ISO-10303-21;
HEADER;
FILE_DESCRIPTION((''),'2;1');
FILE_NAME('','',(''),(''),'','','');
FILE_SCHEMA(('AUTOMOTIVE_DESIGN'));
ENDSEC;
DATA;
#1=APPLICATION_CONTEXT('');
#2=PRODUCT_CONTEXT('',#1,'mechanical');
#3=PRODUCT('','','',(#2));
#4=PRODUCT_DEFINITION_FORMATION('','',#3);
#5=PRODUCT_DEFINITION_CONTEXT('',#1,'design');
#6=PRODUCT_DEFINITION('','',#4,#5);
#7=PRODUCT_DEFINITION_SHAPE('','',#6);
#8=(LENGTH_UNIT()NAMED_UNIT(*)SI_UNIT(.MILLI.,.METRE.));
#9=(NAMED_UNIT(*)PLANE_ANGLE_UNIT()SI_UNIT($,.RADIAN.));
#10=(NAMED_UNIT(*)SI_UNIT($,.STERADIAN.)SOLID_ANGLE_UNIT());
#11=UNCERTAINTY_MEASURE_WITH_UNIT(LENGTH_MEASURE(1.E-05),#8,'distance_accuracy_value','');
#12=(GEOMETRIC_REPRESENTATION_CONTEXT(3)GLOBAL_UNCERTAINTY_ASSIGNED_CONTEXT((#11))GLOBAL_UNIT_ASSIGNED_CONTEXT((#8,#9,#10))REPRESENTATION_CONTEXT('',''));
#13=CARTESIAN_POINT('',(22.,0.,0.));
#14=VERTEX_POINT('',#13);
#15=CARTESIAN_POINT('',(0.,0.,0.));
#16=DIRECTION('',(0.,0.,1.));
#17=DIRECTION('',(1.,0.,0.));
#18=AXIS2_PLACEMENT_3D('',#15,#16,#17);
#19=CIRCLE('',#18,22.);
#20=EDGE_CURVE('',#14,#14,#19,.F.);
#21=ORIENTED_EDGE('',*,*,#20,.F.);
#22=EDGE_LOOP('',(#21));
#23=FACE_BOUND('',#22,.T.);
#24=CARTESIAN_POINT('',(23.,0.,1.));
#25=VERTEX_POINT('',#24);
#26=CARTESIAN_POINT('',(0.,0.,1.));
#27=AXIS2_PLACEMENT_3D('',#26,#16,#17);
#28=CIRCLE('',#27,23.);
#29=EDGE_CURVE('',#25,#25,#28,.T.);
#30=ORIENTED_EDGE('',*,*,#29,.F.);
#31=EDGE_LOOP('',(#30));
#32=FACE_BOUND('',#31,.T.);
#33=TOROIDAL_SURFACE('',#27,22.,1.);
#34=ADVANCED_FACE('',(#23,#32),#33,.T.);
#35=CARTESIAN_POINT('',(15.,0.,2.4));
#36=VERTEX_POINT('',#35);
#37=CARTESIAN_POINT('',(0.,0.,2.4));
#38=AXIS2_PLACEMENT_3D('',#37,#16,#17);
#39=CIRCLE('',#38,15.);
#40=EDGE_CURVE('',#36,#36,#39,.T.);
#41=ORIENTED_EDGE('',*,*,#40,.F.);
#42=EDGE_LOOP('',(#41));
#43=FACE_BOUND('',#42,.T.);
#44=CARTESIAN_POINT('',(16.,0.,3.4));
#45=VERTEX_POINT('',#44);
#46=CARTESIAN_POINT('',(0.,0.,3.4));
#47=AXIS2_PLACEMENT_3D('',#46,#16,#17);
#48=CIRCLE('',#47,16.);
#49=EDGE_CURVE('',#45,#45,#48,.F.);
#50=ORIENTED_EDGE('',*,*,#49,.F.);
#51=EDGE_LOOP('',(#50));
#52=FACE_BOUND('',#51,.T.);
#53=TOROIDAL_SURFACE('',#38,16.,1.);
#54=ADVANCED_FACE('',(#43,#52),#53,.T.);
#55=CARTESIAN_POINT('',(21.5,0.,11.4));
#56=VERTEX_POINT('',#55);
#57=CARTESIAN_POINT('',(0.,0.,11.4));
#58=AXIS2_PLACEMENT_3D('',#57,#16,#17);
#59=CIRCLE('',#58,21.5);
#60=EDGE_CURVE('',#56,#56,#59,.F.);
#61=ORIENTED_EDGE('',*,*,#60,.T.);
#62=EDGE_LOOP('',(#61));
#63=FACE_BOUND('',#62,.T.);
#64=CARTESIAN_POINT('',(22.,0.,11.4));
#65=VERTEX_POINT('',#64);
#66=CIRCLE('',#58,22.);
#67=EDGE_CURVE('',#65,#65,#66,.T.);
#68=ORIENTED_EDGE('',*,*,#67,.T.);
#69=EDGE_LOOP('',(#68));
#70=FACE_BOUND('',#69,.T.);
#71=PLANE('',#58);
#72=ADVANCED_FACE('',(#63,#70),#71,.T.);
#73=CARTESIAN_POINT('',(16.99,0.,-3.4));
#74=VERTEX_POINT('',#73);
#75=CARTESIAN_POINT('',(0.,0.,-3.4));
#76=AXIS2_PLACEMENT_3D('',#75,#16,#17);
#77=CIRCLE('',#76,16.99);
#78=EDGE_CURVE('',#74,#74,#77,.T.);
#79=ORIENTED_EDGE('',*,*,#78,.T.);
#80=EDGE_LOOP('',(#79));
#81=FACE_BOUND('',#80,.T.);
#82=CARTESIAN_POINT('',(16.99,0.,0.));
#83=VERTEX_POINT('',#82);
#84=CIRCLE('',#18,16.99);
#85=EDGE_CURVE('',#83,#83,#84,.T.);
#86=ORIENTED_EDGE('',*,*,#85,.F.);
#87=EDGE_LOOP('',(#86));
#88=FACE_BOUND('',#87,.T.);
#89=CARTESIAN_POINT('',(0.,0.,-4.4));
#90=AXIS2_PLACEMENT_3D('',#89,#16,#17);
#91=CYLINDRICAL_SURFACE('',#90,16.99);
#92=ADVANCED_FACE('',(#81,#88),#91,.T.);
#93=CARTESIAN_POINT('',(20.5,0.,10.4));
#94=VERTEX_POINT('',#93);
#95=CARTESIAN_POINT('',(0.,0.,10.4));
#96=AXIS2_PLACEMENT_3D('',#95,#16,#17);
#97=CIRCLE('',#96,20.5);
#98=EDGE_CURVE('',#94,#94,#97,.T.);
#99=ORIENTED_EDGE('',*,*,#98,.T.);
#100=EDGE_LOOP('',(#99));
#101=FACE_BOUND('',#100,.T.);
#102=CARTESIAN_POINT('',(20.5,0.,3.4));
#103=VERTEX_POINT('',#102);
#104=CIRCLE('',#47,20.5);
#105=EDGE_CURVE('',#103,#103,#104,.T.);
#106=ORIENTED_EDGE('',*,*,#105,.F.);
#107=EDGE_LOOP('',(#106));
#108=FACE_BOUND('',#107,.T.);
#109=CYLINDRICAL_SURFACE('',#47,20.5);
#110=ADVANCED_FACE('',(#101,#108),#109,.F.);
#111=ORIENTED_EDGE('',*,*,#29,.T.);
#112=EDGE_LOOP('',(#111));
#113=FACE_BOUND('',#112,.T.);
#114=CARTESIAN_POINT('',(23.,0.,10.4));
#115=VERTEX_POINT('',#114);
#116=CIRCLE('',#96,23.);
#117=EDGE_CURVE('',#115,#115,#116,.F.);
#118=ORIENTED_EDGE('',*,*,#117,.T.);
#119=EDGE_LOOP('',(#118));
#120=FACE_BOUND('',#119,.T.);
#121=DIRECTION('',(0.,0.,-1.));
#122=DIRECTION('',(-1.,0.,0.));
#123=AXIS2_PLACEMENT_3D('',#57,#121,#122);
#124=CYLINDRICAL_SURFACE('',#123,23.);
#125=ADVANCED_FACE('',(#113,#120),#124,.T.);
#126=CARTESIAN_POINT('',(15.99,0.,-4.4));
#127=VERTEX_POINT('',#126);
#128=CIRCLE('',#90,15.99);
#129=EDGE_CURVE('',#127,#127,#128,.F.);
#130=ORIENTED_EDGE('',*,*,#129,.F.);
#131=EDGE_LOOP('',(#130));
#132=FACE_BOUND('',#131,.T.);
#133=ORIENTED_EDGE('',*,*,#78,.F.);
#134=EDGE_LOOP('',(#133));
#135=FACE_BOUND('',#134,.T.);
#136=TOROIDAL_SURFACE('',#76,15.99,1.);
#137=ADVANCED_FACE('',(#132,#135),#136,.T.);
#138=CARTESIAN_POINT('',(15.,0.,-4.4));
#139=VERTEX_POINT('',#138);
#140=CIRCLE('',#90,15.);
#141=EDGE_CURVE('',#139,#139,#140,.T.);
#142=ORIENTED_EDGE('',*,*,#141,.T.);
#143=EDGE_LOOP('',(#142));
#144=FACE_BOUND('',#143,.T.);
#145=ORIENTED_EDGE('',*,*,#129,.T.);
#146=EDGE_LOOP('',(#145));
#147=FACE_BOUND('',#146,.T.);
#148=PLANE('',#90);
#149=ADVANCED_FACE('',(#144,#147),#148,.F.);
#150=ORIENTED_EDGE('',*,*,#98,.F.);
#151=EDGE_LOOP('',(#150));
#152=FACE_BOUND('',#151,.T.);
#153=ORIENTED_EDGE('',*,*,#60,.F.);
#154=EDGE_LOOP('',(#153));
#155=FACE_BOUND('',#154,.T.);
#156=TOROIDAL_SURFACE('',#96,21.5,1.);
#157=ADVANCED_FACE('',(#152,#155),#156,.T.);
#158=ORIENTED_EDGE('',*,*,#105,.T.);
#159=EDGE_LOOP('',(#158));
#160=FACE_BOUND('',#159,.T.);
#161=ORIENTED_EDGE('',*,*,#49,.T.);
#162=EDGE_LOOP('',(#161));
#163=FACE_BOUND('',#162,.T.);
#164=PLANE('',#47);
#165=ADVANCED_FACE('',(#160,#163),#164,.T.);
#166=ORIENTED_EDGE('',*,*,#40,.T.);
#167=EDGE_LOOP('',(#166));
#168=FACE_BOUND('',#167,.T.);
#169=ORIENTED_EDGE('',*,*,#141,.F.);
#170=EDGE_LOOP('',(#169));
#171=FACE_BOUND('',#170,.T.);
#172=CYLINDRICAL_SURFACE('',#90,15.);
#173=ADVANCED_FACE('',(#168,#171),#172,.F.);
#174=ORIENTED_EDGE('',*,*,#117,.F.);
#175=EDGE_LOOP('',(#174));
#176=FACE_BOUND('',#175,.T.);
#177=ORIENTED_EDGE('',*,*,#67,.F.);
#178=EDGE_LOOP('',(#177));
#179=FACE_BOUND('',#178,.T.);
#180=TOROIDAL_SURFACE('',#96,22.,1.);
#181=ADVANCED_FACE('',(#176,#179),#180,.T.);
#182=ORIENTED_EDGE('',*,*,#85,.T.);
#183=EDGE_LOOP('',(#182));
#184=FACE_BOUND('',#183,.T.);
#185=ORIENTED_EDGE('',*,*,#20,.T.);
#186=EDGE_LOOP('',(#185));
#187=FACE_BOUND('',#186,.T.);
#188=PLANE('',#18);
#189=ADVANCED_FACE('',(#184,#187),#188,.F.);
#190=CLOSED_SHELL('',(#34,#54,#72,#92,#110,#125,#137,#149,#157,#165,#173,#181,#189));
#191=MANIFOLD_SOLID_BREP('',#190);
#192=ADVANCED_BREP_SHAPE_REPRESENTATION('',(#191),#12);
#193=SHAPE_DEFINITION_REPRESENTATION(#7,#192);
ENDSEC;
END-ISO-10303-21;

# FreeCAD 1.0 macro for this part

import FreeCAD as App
import Part
import Sketcher
Q = App.Units.Quantity


def edges_at(feature, points):
    """Names of the edges that pass closest to the given points."""
    edges = feature.Shape.Edges
    near = lambda p: min(range(len(edges)), key=lambda i: edges[i].distToShape(Part.Vertex(*p))[0])
    return sorted({f"Edge{near(p) + 1}" for p in points})

doc = App.newDocument("Part")
body = doc.addObject("PartDesign::Body", "Body")

# Sketch on XY plane
sketch1 = body.newObject("Sketcher::SketchObject", "Sketch")
sketch1.AttachmentSupport = (doc.getObject("XY_Plane"), [""])
sketch1.MapMode = "FlatFace"
sketch1.addGeometry(Part.Circle(App.Vector(0, 0, 0), App.Vector(0, 0, 1), 23), False)
sketch1.addConstraint([
    Sketcher.Constraint("Coincident", 0, 3, -1, 1),
    Sketcher.Constraint("Diameter", 0, Q("46 mm")),
])
pad1 = body.newObject("PartDesign::Pad", "Pad")
pad1.Profile = sketch1
pad1.Length = 11.4

# Sketch on XY plane
sketch2 = body.newObject("Sketcher::SketchObject", "Sketch001")
sketch2.AttachmentSupport = (doc.getObject("XY_Plane"), [""])
sketch2.MapMode = "FlatFace"
sketch2.AttachmentOffset = App.Placement(App.Vector(0, 0, 11.4), App.Rotation())
sketch2.addGeometry(Part.Circle(App.Vector(0, 0, 0), App.Vector(0, 0, 1), 20.5), False)
sketch2.addConstraint([
    Sketcher.Constraint("Coincident", 0, 3, -1, 1),
    Sketcher.Constraint("Diameter", 0, Q("41 mm")),
])
pocket1 = body.newObject("PartDesign::Pocket", "Pocket")
pocket1.Profile = sketch2
pocket1.Length = 8

# Sketch on XY plane
sketch3 = body.newObject("Sketcher::SketchObject", "Sketch002")
sketch3.AttachmentSupport = (doc.getObject("XY_Plane"), [""])
sketch3.MapMode = "FlatFace"
sketch3.AttachmentOffset = App.Placement(App.Vector(0, 0, 3.4), App.Rotation())
sketch3.addGeometry(Part.Circle(App.Vector(0, 0, 0), App.Vector(0, 0, 1), 16.99), False)
sketch3.addConstraint([
    Sketcher.Constraint("Coincident", 0, 3, -1, 1),
    Sketcher.Constraint("Diameter", 0, Q("33.98 mm")),
])
pad2 = body.newObject("PartDesign::Pad", "Pad001")
pad2.Profile = sketch3
pad2.Length = 7.8
pad2.Reversed = True

# Sketch on XY plane
sketch4 = body.newObject("Sketcher::SketchObject", "Sketch003")
sketch4.AttachmentSupport = (doc.getObject("XY_Plane"), [""])
sketch4.MapMode = "FlatFace"
sketch4.AttachmentOffset = App.Placement(App.Vector(0, 0, 3.4), App.Rotation())
sketch4.addGeometry(Part.Circle(App.Vector(0, 0, 0), App.Vector(0, 0, 1), 15), False)
sketch4.addConstraint([
    Sketcher.Constraint("Coincident", 0, 3, -1, 1),
    Sketcher.Constraint("Diameter", 0, Q("30 mm")),
])
pocket2 = body.newObject("PartDesign::Pocket", "Pocket001")
pocket2.Profile = sketch4
pocket2.Type = "ThroughAll"
doc.recompute()

fillet = body.newObject("PartDesign::Fillet", "Fillet")
fillet.Base = (pocket2, edges_at(pocket2, [(-15, 0, 3.4)]))
fillet.Radius = 1
doc.recompute()

fillet2 = body.newObject("PartDesign::Fillet", "Fillet001")
fillet2.Base = (fillet, edges_at(fillet, [(-16.99, 0, -4.4), (-23, 0, 11.4), (-20.5, 0, 11.4)]))
fillet2.Radius = 1
doc.recompute()

fillet3 = body.newObject("PartDesign::Fillet", "Fillet002")
fillet3.Base = (fillet2, edges_at(fillet2, [(-23, 0, 0)]))
fillet3.Radius = 1

doc.recompute()
